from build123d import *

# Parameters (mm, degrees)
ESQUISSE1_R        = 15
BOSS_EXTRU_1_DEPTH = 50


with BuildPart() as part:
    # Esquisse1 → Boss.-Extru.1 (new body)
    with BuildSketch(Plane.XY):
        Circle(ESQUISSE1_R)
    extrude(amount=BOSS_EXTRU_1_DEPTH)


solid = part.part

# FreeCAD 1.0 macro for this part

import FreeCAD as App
import Part
import Sketcher
Q = App.Units.Quantity

doc = App.newDocument("Part")
body = doc.addObject("PartDesign::Body", "Body")

# Sketch on XY plane
sketch1 = doc.addObject("Sketcher::SketchObject", "Sketch")
body.addObject(sketch1)
sketch1.AttachmentSupport = (doc.XY_Plane, [""])
sketch1.MapMode = "FlatFace"
sketch1.addGeometry(Part.Circle(App.Vector(0, 0, 0), App.Vector(0, 0, 1), 15), False)
sketch1.addConstraint(Sketcher.Constraint("Coincident", 0, 3, -1, 1))
sketch1.addConstraint(Sketcher.Constraint("Diameter", 0, Q("30 mm")))
pad1 = doc.addObject("PartDesign::Pad", "Pad")
body.addObject(pad1)
pad1.Profile = sketch1
pad1.Length = 50

doc.recompute()
